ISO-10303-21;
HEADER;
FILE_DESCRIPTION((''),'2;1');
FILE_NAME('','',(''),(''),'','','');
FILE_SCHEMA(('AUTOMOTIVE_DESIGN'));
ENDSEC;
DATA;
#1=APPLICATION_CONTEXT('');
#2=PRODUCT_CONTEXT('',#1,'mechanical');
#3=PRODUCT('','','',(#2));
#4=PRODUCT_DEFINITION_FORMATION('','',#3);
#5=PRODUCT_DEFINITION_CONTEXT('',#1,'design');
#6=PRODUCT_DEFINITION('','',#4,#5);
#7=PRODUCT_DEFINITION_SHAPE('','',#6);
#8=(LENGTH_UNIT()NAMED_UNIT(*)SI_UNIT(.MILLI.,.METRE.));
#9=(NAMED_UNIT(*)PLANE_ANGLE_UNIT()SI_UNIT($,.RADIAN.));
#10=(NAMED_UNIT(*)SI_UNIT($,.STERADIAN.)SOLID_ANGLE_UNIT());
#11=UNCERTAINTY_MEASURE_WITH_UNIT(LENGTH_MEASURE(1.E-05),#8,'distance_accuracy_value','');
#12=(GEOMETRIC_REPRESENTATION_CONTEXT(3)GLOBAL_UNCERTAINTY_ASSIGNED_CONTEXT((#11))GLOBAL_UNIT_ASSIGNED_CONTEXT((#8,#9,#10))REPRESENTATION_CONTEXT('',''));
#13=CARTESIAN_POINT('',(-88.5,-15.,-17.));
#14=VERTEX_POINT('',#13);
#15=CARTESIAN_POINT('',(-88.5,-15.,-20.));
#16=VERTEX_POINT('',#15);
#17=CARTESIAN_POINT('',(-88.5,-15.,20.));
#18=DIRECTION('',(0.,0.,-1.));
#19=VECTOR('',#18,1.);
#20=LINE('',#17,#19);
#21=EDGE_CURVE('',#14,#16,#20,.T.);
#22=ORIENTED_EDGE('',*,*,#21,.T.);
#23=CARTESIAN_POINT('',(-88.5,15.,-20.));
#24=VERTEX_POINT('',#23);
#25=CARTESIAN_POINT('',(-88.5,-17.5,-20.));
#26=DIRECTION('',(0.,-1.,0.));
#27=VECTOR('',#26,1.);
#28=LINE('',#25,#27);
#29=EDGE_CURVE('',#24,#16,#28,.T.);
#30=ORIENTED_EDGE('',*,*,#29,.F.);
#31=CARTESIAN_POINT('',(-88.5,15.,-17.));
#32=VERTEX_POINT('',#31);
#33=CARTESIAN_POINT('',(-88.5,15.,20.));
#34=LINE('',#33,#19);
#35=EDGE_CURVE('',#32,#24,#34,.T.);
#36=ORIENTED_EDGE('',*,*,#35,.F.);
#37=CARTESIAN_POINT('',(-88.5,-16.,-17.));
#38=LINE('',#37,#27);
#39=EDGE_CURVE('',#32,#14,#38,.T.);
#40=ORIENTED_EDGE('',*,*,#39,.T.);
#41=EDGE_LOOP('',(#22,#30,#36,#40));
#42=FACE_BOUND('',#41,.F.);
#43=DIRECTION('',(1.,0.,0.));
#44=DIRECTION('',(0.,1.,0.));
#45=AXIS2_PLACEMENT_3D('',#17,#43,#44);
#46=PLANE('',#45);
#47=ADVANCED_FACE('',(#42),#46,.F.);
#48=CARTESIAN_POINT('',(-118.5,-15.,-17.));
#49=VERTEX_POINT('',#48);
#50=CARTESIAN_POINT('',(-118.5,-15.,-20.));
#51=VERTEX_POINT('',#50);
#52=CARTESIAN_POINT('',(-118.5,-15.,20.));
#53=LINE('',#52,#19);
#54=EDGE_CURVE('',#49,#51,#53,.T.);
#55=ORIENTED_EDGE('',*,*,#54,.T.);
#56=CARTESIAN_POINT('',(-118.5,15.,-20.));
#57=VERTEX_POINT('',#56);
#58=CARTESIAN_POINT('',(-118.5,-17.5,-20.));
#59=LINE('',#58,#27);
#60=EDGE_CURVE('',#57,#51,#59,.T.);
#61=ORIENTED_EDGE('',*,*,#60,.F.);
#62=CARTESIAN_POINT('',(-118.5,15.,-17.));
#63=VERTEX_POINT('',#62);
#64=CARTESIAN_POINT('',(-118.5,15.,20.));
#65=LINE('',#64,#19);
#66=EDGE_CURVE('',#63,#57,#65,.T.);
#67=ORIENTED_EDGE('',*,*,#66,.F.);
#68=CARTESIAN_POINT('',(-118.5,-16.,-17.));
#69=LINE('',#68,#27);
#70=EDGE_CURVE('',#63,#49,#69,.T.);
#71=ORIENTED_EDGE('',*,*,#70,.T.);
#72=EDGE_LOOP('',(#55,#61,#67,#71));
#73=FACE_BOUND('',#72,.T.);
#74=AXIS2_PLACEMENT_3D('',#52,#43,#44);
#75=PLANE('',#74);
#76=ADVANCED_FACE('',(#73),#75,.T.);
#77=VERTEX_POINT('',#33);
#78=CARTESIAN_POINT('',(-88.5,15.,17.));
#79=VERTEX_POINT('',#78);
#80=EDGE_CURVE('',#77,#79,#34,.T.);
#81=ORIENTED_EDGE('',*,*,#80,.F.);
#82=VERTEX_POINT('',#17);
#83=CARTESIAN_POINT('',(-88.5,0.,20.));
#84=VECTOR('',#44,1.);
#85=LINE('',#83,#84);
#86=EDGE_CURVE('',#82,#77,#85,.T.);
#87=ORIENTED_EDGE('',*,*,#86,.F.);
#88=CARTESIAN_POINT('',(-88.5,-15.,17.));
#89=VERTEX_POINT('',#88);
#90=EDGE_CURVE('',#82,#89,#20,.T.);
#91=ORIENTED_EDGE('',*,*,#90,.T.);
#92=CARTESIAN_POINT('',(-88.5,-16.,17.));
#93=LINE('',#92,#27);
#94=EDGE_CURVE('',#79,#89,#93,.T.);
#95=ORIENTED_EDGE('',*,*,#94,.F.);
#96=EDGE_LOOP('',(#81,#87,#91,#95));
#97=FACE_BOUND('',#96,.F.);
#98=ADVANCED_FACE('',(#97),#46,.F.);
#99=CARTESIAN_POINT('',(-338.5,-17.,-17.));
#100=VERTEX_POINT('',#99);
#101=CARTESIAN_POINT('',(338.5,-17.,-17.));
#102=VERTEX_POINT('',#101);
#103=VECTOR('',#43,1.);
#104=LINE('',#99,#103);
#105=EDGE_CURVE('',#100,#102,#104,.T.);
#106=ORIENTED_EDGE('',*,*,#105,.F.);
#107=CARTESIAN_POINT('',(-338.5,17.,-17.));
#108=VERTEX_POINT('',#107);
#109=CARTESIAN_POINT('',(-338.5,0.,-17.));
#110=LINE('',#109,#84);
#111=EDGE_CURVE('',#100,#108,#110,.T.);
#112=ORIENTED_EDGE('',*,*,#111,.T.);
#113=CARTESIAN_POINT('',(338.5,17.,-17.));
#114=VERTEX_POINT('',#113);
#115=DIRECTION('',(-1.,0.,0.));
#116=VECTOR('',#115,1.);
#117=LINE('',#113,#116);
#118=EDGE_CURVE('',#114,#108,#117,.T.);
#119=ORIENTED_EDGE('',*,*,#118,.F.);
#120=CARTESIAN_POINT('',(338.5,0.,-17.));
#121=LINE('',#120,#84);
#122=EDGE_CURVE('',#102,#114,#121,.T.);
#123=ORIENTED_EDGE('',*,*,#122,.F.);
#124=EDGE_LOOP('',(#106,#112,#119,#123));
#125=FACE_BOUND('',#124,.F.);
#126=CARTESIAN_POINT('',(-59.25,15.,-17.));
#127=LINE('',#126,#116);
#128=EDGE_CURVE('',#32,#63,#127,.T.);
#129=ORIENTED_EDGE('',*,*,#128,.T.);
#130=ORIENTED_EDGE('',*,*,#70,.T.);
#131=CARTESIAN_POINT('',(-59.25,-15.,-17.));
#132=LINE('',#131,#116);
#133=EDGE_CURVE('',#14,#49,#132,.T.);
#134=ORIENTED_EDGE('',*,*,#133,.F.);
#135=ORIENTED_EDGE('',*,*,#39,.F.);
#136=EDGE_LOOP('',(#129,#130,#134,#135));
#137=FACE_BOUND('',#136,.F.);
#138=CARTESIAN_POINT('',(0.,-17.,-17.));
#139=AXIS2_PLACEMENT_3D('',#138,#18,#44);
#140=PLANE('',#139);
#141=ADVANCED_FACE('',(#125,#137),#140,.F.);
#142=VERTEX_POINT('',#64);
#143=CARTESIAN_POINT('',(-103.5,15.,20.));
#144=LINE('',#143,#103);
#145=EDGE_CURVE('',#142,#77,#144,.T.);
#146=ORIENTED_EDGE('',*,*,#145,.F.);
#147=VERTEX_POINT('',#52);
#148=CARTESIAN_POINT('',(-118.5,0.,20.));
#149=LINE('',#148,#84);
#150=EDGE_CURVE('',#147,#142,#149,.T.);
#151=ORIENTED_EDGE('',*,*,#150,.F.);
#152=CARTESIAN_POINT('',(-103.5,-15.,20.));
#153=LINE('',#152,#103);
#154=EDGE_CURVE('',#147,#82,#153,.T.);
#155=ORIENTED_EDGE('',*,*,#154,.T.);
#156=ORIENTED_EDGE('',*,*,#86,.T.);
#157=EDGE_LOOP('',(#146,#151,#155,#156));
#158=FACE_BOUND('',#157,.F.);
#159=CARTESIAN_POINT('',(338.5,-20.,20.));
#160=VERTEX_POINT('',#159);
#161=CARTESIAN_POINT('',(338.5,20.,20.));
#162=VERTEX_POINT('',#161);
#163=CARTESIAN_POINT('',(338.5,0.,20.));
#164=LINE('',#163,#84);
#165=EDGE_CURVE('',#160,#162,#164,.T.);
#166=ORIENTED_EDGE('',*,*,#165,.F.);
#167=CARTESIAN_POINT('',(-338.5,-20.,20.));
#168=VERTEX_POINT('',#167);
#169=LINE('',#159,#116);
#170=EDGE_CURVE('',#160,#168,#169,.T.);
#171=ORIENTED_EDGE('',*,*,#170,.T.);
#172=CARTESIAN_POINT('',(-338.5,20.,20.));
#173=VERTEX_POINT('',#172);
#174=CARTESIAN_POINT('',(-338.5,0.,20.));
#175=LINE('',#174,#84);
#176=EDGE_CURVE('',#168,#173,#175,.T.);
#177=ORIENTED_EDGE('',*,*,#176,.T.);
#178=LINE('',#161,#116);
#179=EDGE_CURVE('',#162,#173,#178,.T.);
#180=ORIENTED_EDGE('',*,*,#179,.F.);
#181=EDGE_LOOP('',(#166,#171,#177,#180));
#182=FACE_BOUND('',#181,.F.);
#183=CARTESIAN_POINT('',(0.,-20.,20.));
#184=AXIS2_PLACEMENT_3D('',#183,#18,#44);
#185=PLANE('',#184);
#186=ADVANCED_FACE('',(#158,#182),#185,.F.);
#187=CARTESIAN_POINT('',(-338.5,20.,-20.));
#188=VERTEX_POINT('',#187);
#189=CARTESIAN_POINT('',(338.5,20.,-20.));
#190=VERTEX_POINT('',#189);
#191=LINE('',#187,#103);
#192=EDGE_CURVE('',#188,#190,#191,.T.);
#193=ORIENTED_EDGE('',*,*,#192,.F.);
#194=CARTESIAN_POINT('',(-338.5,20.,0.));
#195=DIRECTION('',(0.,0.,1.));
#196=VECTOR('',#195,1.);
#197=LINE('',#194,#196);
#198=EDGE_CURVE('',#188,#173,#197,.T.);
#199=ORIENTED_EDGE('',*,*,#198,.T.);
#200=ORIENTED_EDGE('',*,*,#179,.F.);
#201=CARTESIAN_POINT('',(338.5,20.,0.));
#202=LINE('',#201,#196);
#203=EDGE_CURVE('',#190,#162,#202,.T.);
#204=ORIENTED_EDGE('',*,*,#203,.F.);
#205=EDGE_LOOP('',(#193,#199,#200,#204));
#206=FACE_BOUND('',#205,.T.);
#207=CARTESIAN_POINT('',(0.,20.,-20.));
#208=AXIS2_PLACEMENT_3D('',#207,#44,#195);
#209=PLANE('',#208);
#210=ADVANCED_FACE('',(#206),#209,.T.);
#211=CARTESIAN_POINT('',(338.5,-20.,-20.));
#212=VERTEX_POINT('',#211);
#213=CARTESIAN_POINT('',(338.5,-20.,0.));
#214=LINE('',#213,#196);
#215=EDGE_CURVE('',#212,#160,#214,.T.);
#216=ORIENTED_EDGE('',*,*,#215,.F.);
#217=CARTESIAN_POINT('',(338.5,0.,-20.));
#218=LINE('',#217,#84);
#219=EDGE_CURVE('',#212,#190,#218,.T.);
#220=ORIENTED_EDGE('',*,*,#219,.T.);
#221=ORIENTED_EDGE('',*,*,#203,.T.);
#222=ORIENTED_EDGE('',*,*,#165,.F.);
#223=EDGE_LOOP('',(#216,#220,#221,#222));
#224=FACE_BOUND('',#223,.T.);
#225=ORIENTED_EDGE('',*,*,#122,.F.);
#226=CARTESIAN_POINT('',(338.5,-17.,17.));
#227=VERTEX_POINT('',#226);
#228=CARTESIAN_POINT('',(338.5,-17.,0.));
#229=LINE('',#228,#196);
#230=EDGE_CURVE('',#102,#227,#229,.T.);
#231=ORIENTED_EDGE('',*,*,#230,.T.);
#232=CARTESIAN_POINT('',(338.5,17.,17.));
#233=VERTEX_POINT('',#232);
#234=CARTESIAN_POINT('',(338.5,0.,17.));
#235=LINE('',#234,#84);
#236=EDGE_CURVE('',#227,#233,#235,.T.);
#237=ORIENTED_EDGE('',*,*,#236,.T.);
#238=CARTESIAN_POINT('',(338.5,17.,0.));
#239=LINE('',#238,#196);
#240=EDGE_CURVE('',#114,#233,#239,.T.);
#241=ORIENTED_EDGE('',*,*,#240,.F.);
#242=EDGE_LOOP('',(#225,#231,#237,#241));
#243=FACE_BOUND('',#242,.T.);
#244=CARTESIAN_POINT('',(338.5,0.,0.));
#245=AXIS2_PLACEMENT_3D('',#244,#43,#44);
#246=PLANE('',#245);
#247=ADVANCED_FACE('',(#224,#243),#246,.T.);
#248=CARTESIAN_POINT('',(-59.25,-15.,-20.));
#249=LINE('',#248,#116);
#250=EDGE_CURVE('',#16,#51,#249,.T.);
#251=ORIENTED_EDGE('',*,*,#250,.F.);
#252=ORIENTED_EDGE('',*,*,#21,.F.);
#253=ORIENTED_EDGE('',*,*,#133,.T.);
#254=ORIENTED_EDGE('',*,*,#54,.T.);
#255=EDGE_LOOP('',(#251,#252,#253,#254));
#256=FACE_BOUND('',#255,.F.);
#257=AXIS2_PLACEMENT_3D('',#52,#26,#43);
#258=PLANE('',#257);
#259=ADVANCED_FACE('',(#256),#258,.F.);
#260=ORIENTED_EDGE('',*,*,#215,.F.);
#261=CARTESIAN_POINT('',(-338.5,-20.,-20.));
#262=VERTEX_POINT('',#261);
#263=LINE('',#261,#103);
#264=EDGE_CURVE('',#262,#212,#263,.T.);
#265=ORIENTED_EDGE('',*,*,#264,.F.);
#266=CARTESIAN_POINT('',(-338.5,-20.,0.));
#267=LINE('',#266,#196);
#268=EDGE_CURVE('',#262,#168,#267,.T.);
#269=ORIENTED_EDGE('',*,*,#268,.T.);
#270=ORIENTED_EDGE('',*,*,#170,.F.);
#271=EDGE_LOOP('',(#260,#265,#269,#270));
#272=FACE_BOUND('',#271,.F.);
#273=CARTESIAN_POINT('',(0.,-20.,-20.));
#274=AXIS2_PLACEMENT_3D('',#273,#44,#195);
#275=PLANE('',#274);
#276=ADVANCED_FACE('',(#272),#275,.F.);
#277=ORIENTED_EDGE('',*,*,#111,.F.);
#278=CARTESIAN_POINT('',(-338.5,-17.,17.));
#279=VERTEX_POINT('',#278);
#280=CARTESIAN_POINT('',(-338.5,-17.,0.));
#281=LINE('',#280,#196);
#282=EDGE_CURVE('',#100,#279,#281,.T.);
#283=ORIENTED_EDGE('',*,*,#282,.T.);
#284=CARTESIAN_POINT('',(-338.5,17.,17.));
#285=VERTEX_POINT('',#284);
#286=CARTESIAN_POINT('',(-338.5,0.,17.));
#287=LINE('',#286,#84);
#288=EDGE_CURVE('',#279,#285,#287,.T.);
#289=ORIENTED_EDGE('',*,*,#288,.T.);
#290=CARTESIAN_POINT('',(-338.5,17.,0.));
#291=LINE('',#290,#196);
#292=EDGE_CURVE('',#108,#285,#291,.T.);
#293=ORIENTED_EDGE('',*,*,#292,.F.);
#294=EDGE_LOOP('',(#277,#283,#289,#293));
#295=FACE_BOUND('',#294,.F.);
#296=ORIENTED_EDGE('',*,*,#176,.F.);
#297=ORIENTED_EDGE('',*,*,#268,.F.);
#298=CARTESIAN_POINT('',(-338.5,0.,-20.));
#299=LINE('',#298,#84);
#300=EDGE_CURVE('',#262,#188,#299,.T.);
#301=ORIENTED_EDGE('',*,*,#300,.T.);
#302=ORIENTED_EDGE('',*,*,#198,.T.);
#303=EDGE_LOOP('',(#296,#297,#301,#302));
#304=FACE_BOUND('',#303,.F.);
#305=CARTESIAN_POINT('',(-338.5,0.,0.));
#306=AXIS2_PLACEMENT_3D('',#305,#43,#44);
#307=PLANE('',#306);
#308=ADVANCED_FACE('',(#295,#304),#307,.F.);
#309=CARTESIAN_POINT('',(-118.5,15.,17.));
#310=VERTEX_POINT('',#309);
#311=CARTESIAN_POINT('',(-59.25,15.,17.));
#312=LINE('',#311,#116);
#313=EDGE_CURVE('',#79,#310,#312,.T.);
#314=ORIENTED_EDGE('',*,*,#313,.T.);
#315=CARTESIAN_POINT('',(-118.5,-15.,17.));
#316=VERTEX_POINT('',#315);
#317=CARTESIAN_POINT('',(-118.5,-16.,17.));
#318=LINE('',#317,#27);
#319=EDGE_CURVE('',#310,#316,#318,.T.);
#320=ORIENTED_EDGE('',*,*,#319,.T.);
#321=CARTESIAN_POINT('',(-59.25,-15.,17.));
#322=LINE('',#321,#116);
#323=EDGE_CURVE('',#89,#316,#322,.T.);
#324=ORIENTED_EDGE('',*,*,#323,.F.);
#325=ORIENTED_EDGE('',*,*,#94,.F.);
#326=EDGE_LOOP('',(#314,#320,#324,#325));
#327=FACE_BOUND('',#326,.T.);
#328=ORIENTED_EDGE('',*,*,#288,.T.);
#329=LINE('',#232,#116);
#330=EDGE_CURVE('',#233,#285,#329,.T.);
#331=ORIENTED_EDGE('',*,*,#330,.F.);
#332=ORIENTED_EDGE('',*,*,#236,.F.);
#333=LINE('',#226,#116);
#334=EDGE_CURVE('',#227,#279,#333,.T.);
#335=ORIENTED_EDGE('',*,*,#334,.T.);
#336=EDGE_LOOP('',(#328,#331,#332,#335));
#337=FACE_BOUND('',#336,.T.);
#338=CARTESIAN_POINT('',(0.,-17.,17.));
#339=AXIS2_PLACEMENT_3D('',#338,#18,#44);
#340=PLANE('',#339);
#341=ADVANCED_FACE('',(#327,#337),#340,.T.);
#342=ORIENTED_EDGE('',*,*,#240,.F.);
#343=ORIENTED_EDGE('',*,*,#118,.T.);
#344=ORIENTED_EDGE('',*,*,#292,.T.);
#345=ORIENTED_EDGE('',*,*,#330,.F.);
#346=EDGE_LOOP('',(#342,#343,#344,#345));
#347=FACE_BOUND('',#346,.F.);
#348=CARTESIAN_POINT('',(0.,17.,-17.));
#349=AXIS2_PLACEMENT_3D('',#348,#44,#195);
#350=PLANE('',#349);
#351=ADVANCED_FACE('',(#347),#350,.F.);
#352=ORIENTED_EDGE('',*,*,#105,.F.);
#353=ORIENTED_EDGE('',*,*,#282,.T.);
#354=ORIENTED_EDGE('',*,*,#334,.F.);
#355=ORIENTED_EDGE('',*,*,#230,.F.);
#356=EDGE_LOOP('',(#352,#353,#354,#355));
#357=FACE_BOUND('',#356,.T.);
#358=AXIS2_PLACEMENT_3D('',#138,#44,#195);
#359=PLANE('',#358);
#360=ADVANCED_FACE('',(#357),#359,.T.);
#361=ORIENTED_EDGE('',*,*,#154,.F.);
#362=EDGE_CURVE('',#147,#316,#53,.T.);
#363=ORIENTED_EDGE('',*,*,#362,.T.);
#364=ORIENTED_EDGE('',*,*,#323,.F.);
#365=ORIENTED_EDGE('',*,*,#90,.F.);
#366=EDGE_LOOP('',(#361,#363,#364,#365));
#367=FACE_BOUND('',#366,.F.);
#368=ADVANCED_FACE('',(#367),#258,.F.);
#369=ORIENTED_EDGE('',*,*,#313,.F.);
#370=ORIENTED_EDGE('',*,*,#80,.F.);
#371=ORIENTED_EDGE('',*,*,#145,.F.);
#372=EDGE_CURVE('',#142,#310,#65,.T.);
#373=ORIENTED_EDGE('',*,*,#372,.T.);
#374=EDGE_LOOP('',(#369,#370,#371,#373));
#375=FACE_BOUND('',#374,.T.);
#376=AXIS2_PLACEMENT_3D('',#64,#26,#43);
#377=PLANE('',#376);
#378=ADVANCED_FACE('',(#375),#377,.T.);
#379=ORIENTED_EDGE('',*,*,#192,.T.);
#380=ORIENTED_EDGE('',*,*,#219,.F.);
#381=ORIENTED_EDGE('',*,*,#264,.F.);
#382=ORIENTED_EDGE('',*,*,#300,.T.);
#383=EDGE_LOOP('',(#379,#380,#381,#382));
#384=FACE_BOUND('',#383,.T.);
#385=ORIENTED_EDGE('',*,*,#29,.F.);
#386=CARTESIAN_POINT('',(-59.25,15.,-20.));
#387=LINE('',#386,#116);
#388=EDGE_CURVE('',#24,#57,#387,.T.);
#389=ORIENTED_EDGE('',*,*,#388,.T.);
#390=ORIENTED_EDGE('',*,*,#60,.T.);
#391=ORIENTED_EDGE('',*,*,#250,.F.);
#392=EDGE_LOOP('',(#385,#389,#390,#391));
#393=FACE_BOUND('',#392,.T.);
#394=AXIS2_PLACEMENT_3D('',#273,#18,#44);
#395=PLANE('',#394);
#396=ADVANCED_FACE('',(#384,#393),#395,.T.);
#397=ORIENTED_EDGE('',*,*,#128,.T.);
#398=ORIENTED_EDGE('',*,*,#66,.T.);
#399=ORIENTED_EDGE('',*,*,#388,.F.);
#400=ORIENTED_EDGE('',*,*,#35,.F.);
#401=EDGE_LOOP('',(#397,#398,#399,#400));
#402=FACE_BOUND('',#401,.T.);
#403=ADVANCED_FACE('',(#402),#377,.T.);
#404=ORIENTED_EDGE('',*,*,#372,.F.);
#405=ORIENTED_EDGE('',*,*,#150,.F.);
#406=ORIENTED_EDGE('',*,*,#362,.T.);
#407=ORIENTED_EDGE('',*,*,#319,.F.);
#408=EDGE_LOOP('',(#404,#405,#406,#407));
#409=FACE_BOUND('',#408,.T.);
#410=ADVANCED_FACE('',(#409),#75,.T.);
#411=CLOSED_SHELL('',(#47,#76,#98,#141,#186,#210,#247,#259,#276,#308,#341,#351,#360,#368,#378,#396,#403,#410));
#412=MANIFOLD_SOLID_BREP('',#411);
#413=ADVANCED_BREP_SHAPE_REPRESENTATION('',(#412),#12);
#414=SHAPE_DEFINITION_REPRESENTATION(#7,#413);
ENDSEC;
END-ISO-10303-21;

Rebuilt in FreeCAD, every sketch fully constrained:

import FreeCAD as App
import Part
import Sketcher

V = App.Vector
Q = App.Units.Quantity


def add_polygon(sketch, points):
    """Adds a closed chain of lines whose ends are joined by coincident constraints."""
    first, n = sketch.GeometryCount, len(points)
    for a, b in zip(points, points[1:] + points[:1]):
        sketch.addGeometry(Part.LineSegment(App.Vector(*a, 0), App.Vector(*b, 0)), False)
    for i in range(n):
        sketch.addConstraint(Sketcher.Constraint("Coincident", first + i, 2, first + (i + 1) % n, 1))

doc = App.newDocument("Part")
body = doc.addObject("PartDesign::Body", "Body")

# Sketch on YZ plane
sketch1 = body.newObject("Sketcher::SketchObject", "Sketch")
sketch1.AttachmentSupport = (doc.getObject("YZ_Plane"), [""])
sketch1.MapMode = "FlatFace"
add_polygon(sketch1, [(-20, 20), (-20, -20), (20, -20), (20, 20)])  # lines 0-3
add_polygon(sketch1, [(17, -17), (-17, -17), (-17, 17), (17, 17)])  # lines 4-7
sketch1.addConstraint(Sketcher.Constraint("Vertical", 0))
sketch1.addConstraint(Sketcher.Constraint("Horizontal", 1))
sketch1.addConstraint(Sketcher.Constraint("Vertical", 2))
sketch1.addConstraint(Sketcher.Constraint("Horizontal", 3))
sketch1.addConstraint(Sketcher.Constraint("Horizontal", 4))
sketch1.addConstraint(Sketcher.Constraint("Vertical", 5))
sketch1.addConstraint(Sketcher.Constraint("Horizontal", 6))
sketch1.addConstraint(Sketcher.Constraint("Vertical", 7))
sketch1.addConstraint(Sketcher.Constraint("Symmetric", 0, 2, 2, 2, -1, 1))
sketch1.addConstraint(Sketcher.Constraint("Symmetric", 4, 2, 6, 2, -1, 1))
sketch1.addConstraint(Sketcher.Constraint("Equal", 3, 0))
sketch1.addConstraint(Sketcher.Constraint("Equal", 6, 5))
sketch1.addConstraint(Sketcher.Constraint("DistanceX", 1, 1, 1, 2, Q("40 mm")))
sketch1.addConstraint(Sketcher.Constraint("DistanceX", 4, 2, 4, 1, Q("34 mm")))
pad1 = body.newObject("PartDesign::Pad", "Pad")
pad1.Profile = sketch1
pad1.Length = 677
pad1.Midplane = True

# Sketch on XY plane
sketch2 = body.newObject("Sketcher::SketchObject", "Sketch001")
sketch2.AttachmentSupport = (doc.getObject("XY_Plane"), [""])
sketch2.MapMode = "FlatFace"
sketch2.AttachmentOffset = App.Placement(V(0, 0, 20), App.Rotation())
add_polygon(sketch2, [(-118, 15), (-118, -15), (-88, -15), (-88, 15)])  # lines 0-3
sketch2.addConstraint(Sketcher.Constraint("Vertical", 0))
sketch2.addConstraint(Sketcher.Constraint("Horizontal", 1))
sketch2.addConstraint(Sketcher.Constraint("Vertical", 2))
sketch2.addConstraint(Sketcher.Constraint("Horizontal", 3))
sketch2.addConstraint(Sketcher.Constraint("Equal", 3, 0))
sketch2.addConstraint(Sketcher.Constraint("DistanceX", 1, 1, 1, 2, Q("30 mm")))
sketch2.addConstraint(Sketcher.Constraint("DistanceY", 0, 2, -1, 1, Q("15 mm")))
sketch2.addConstraint(Sketcher.Constraint("DistanceX", 0, 2, -1, 1, Q("118.5 mm")))
pocket1 = body.newObject("PartDesign::Pocket", "Pocket")
pocket1.Profile = sketch2
pocket1.Type = "ThroughAll"

doc.recompute()
